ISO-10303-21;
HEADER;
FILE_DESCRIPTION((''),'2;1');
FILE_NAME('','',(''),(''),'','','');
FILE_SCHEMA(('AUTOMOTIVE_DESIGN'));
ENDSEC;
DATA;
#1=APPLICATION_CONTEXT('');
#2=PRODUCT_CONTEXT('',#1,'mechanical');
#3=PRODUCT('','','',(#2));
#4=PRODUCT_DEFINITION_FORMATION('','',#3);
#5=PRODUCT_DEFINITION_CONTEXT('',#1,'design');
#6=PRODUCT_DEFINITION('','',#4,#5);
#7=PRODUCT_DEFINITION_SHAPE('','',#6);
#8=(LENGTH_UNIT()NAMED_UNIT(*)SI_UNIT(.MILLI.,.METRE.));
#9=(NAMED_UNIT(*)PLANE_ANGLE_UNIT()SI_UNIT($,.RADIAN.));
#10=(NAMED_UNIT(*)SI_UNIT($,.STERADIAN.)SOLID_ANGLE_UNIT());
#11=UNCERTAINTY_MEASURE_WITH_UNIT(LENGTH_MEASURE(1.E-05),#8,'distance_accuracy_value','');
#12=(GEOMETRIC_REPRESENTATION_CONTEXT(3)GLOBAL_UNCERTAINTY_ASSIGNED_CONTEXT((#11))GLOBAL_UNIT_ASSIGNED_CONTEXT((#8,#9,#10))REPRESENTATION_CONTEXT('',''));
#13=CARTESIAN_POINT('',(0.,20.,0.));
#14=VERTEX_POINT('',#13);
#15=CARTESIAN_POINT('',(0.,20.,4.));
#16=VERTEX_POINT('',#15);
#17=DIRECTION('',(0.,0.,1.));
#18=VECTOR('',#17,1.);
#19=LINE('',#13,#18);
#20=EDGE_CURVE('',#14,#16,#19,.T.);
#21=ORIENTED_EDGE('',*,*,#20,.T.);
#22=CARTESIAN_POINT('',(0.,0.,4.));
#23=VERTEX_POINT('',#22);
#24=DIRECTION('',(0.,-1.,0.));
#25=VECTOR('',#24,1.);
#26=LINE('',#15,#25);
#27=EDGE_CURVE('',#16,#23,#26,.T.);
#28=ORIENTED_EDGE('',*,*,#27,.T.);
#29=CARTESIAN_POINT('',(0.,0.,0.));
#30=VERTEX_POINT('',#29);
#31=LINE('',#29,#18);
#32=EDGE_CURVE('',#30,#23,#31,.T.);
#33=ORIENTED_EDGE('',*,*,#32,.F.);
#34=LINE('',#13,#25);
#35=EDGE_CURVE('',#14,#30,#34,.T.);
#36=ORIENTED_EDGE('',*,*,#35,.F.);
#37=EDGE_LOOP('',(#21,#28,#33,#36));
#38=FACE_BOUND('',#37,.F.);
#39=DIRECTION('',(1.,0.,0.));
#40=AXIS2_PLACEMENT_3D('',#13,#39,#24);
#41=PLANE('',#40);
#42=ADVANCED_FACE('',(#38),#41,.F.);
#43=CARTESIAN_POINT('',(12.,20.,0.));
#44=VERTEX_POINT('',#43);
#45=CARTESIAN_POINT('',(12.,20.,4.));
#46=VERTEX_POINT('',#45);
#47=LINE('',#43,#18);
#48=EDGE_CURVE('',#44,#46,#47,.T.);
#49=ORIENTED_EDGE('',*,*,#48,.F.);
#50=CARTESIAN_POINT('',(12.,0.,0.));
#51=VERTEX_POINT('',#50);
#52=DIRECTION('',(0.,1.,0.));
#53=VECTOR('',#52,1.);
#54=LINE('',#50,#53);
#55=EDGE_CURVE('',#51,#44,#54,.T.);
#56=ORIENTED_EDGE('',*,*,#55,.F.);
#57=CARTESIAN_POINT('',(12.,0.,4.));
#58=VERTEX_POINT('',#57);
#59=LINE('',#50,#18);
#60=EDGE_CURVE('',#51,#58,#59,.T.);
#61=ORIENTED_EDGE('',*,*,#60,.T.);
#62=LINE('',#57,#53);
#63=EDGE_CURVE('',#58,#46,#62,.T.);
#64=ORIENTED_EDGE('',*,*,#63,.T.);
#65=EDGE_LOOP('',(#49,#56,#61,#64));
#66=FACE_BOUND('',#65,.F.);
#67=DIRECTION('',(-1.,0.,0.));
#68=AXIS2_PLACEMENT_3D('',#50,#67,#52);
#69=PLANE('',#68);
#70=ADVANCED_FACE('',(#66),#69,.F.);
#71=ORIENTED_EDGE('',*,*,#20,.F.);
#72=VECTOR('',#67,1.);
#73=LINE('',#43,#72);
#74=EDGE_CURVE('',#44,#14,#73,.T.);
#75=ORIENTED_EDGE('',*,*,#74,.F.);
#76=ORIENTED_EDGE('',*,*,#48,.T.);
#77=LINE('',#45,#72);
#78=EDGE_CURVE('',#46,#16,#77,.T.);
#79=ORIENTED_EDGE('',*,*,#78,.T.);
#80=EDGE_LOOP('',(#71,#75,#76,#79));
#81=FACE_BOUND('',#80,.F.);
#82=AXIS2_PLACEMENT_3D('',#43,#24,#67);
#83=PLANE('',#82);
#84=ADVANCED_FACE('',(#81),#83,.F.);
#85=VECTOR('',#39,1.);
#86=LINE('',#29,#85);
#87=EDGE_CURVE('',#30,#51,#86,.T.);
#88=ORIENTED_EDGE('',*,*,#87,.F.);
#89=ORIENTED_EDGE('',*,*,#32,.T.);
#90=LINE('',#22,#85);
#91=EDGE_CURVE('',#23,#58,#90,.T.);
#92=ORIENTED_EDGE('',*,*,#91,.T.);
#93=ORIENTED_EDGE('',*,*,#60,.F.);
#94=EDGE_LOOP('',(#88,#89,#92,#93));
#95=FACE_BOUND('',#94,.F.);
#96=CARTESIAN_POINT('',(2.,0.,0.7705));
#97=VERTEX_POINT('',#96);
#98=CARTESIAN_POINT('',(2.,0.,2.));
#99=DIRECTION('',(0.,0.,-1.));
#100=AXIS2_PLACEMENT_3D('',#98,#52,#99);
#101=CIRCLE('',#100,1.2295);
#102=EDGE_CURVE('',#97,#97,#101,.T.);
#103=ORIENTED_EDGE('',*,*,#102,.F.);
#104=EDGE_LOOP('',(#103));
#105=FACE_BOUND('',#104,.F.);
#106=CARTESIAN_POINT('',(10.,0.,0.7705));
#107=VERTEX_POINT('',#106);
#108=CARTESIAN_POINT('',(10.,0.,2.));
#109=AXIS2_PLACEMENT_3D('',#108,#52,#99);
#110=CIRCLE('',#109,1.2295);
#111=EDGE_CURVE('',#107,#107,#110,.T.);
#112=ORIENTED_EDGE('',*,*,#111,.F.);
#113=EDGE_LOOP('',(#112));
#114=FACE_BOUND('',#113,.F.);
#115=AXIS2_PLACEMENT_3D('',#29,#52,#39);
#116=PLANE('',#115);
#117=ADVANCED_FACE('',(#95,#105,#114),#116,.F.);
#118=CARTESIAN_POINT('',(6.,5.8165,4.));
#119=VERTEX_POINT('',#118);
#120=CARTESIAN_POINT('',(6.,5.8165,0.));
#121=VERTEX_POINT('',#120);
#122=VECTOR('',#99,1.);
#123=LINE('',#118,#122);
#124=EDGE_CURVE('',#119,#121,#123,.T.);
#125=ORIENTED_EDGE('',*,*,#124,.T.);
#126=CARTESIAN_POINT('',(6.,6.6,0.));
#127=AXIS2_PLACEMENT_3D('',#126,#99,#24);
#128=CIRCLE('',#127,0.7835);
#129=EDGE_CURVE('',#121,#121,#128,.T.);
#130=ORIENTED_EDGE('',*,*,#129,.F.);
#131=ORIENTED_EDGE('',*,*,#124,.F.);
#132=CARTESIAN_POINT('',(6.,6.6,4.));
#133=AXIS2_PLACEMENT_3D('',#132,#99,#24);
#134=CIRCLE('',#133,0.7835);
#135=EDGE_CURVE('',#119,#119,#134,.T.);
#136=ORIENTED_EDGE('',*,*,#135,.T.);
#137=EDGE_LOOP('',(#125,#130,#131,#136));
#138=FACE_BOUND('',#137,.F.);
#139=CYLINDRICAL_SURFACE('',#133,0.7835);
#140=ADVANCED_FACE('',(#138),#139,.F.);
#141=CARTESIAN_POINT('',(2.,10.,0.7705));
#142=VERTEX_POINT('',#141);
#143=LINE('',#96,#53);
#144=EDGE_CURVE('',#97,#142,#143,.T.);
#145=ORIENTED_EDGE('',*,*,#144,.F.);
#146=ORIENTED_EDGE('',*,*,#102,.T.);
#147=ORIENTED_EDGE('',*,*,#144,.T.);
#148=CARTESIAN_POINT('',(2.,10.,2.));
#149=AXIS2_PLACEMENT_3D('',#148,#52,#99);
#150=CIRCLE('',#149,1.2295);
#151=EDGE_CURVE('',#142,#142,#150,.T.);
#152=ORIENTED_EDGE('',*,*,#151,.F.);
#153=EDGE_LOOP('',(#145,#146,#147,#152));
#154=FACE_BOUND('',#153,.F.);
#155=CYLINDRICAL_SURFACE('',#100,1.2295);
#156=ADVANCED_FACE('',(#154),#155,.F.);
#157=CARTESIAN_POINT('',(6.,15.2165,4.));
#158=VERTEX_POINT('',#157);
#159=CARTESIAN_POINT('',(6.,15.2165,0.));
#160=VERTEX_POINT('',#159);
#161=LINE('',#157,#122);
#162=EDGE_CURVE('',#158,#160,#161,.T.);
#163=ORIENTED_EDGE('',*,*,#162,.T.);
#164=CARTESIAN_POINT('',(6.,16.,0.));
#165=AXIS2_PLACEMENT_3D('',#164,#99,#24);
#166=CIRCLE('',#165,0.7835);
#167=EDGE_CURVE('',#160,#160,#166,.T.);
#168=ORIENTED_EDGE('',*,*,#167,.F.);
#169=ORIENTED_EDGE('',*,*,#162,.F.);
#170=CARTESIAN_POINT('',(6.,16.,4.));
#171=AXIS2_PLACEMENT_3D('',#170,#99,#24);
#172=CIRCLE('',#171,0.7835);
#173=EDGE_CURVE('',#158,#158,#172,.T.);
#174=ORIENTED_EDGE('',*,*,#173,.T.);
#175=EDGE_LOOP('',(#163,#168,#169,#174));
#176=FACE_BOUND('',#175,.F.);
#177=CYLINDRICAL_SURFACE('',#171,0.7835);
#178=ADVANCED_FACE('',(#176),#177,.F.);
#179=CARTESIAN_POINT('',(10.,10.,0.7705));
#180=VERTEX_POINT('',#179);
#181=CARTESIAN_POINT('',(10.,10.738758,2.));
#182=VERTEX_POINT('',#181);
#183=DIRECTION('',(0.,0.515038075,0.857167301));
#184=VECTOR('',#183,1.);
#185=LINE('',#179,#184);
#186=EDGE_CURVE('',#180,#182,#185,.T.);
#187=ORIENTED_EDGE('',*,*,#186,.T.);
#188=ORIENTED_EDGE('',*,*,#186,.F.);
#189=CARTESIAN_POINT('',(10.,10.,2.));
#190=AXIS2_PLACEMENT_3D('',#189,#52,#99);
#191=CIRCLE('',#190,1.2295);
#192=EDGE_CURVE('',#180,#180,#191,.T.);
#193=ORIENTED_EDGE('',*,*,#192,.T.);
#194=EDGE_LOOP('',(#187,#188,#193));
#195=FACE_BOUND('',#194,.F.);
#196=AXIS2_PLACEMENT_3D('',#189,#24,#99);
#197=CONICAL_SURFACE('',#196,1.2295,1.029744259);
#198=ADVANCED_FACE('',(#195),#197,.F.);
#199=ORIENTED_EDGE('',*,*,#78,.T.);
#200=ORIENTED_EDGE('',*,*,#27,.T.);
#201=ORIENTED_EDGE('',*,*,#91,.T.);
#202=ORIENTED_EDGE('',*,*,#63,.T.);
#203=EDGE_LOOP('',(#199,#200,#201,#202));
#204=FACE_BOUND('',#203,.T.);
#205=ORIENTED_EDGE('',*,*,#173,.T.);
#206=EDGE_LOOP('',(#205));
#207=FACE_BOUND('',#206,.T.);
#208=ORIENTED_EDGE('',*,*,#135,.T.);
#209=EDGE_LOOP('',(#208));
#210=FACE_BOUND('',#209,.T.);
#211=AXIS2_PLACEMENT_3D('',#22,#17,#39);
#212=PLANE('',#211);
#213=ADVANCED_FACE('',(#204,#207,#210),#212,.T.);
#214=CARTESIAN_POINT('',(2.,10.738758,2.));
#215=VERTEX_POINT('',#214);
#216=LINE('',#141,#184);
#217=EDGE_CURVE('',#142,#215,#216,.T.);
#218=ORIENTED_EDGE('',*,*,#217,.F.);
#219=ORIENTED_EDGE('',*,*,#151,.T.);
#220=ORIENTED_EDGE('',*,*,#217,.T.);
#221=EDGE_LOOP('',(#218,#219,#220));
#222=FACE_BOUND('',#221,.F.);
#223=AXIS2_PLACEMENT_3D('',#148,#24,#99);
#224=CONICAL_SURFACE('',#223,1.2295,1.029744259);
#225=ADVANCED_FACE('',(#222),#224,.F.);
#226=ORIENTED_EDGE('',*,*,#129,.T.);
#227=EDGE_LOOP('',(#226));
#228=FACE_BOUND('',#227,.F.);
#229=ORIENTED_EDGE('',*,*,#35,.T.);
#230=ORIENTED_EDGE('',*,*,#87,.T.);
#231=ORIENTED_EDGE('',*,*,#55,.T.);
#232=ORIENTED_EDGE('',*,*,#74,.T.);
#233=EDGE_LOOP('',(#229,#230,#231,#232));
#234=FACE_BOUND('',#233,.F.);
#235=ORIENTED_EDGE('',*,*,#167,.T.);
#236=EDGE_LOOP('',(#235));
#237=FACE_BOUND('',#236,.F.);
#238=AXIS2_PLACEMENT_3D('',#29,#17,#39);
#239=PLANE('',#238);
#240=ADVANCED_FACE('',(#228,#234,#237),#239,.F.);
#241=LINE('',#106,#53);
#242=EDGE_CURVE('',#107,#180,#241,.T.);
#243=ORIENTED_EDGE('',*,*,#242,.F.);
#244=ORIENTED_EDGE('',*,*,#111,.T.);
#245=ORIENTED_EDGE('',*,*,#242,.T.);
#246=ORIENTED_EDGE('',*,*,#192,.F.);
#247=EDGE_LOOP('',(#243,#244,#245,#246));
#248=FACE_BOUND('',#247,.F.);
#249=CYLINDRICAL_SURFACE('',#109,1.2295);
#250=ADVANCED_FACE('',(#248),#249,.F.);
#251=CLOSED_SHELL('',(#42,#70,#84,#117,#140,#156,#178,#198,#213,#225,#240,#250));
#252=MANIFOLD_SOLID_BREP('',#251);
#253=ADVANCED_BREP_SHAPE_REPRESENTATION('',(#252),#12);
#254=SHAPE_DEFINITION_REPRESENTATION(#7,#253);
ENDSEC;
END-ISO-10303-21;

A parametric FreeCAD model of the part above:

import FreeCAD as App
import Part
import Sketcher
from FreeCAD import Vector


def add_polygon(sketch, points):
    """Adds a closed chain of lines whose ends are joined by coincident constraints."""
    first, n = sketch.GeometryCount, len(points)
    for a, b in zip(points, points[1:] + points[:1]):
        sketch.addGeometry(Part.LineSegment(App.Vector(*a, 0), App.Vector(*b, 0)), False)
    for i in range(n):
        sketch.addConstraint(Sketcher.Constraint("Coincident", first + i, 2, first + (i + 1) % n, 1))

doc = App.newDocument("Part")
params = doc.addObject("Spreadsheet::Sheet", "Params")
for row, (alias, value) in enumerate([
    ("sketch1_width", "12 mm"),
    ("sketch1_height", "20 mm"),
    ("pad1_length", "4 mm"),
    ("hole_diameter", "2.459 mm"),
    ("hole_depth", "10 mm"),
    ("hole2_diameter", "1.567 mm"),
    ("hole2_depth", "10 mm"),
], start=1):
    params.set(f"A{row}", alias)
    params.set(f"B{row}", "=" + value)
    params.setAlias(f"B{row}", alias)

body = doc.addObject("PartDesign::Body", "Body")

sketch1 = body.newObject("Sketcher::SketchObject", "Sketch")
sketch1.AttachmentSupport = (doc.getObject("XY_Plane"), [""])
sketch1.MapMode = "FlatFace"
add_polygon(sketch1, [(0, 20), (0, 0), (12, 0), (12, 20)])
sketch1.addConstraint([
    Sketcher.Constraint("Vertical", 0),
    Sketcher.Constraint("Horizontal", 1),
    Sketcher.Constraint("Vertical", 2),
    Sketcher.Constraint("Horizontal", 3),
    Sketcher.Constraint("Coincident", 0, 2, -1, 1),
    Sketcher.Constraint("DistanceX", 1, 1, 1, 2, 12.0),
    Sketcher.Constraint("DistanceY", 0, 2, 0, 1, 20.0),
])
sketch1.setExpression("Constraints[9]", "Params.sketch1_width")
sketch1.setExpression("Constraints[10]", "Params.sketch1_height")
pad1 = body.newObject("PartDesign::Pad", "Pad")
pad1.Profile = sketch1
pad1.setExpression("Length", "Params.pad1_length")

sketch2 = body.newObject("Sketcher::SketchObject", "Sketch001")
sketch2.AttachmentSupport = (doc.getObject("XZ_Plane"), [""])
sketch2.MapMode = "FlatFace"
sketch2.addGeometry([
    Part.Circle(Vector(2, 2, 0), Vector(0, 0, 1), 1.2),
    Part.Circle(Vector(10, 2, 0), Vector(0, 0, 1), 1.2),
], False)
sketch2.addConstraint([
    Sketcher.Constraint("Equal", 0, 1),
    Sketcher.Constraint("Horizontal", 0, 3, 1, 3),
    Sketcher.Constraint("Diameter", 0, 2.459),
    Sketcher.Constraint("DistanceX", -1, 1, 0, 3, 2.0),
    Sketcher.Constraint("DistanceY", -1, 1, 0, 3, 2.0),
    Sketcher.Constraint("DistanceX", -1, 1, 1, 3, 10.0),
])
doc.recompute()
hole = body.newObject("PartDesign::Hole", "Hole")
hole.Profile = sketch2
hole.ThreadType = "None"
hole.setExpression("Diameter", "Params.hole_diameter")
hole.DepthType = "Dimension"
hole.setExpression("Depth", "Params.hole_depth")
hole.DrillPoint = "Angled"
hole.DrillPointAngle = 118

sketch3 = body.newObject("Sketcher::SketchObject", "Sketch002")
sketch3.AttachmentSupport = (doc.getObject("XY_Plane"), [""])
sketch3.MapMode = "FlatFace"
sketch3.AttachmentOffset = App.Placement(Vector(0, 0, 4), App.Rotation())
sketch3.addGeometry([
    Part.Circle(Vector(6, 16, 0), Vector(0, 0, 1), 0.8),
    Part.Circle(Vector(6, 6.6, 0), Vector(0, 0, 1), 0.8),
], False)
sketch3.addConstraint([
    Sketcher.Constraint("Equal", 0, 1),
    Sketcher.Constraint("Vertical", 0, 3, 1, 3),
    Sketcher.Constraint("Diameter", 0, 1.567),
    Sketcher.Constraint("DistanceX", -1, 1, 0, 3, 6.0),
    Sketcher.Constraint("DistanceY", -1, 1, 0, 3, 16.0),
    Sketcher.Constraint("DistanceY", -1, 1, 1, 3, 6.6),
])
doc.recompute()
hole2 = body.newObject("PartDesign::Hole", "Hole001")
hole2.Profile = sketch3
hole2.ThreadType = "None"
hole2.setExpression("Diameter", "Params.hole2_diameter")
hole2.DepthType = "Dimension"
hole2.setExpression("Depth", "Params.hole2_depth")
hole2.DrillPoint = "Angled"
hole2.DrillPointAngle = 118

doc.recompute()
